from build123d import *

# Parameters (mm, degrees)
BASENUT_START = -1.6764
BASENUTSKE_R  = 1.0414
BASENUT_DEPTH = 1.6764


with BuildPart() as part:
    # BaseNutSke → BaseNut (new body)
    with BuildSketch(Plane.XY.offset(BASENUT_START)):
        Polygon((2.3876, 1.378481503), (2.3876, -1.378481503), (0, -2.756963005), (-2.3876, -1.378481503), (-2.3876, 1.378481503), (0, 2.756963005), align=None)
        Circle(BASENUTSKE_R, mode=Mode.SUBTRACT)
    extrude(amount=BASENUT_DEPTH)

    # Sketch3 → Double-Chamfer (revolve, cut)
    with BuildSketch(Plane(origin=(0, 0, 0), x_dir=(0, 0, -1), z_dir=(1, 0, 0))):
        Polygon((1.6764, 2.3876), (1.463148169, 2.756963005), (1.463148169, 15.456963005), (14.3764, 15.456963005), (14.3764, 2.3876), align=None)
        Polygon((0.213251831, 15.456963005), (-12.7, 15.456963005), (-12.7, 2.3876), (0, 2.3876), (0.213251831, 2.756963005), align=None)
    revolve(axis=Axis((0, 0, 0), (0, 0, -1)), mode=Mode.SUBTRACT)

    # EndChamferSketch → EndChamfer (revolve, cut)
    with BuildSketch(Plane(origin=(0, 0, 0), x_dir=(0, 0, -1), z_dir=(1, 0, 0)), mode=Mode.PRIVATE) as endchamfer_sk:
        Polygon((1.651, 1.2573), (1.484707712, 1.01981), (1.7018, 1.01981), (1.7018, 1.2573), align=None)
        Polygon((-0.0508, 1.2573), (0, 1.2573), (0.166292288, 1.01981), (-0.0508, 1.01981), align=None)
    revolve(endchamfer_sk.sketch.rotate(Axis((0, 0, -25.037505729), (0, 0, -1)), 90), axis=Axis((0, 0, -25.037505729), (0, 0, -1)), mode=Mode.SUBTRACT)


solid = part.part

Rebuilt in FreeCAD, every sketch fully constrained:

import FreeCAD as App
import Part
import Sketcher

V = App.Vector
Q = App.Units.Quantity

doc = App.newDocument("Part")
params = doc.addObject("Spreadsheet::Sheet", "Params")
for row, (alias, value) in enumerate([
    ("sketch1_diameter", "0.082 in"),
    ("pad1_length", "0.066 in"),
    ("sketch2_width", "0.5 in"),
    ("groove_angle", "360 deg"),
    ("sketch3_height", "0.002 in"),
    ("groove2_angle", "360 deg"),
], start=1):
    params.set(f"A{row}", alias)
    params.set(f"B{row}", "=" + value)
    params.setAlias(f"B{row}", alias)

body = doc.addObject("PartDesign::Body", "Body")

# Sketch on XY plane
sketch1 = body.newObject("Sketcher::SketchObject", "Sketch")
sketch1.AttachmentSupport = (doc.getObject("XY_Plane"), [""])
sketch1.MapMode = "FlatFace"
sketch1.AttachmentOffset = App.Placement(V(0, 0, -0.066 * 25.4), App.Rotation())
sketch1.addGeometry([
    Part.LineSegment(V(2.4, -1.4, 0), V(2.4, 1.4, 0)),  # 0
    Part.LineSegment(V(2.4, 1.4, 0), V(0, 2.8, 0)),  # 1
    Part.LineSegment(V(0, 2.8, 0), V(-2.4, 1.4, 0)),  # 2
    Part.LineSegment(V(-2.4, 1.4, 0), V(-2.4, -1.4, 0)),  # 3
    Part.LineSegment(V(-2.4, -1.4, 0), V(0, -2.8, 0)),  # 4
    Part.LineSegment(V(0, -2.8, 0), V(2.4, -1.4, 0)),  # 5
    Part.Circle(V(0, 0, 0), V(0, 0, 1), 1),  # 6
], False)
sketch1.addConstraint([
    Sketcher.Constraint("Coincident", 0, 2, 1, 1),
    Sketcher.Constraint("Coincident", 1, 2, 2, 1),
    Sketcher.Constraint("Coincident", 2, 2, 3, 1),
    Sketcher.Constraint("Coincident", 3, 2, 4, 1),
    Sketcher.Constraint("Coincident", 4, 2, 5, 1),
    Sketcher.Constraint("Coincident", 5, 2, 0, 1),
    Sketcher.Constraint("Vertical", 0),
    Sketcher.Constraint("Vertical", 3),
    Sketcher.Constraint("Coincident", 6, 3, -1, 1),
    Sketcher.Constraint("Symmetric", 0, 2, 3, 2, -1, 1),
    Sketcher.Constraint("Symmetric", 1, 2, 4, 2, -1, 1),
    Sketcher.Constraint("PointOnObject", 1, 2, -2),
    Sketcher.Constraint("Parallel", 2, 5),
    Sketcher.Constraint("Horizontal", 0, 2, 2, 2),
    Sketcher.Constraint("Diameter", 6, Q("0.082 in")),
    Sketcher.Constraint("Angle", 1, Q("150 deg")),
    Sketcher.Constraint("DistanceX", -1, 1, 0, 2, Q("0.094 in")),
    Sketcher.Constraint("DistanceY", 0, 1, 0, 2, Q("2.756963 mm")),
])
sketch1.setExpression("Constraints[14]", "Params.sketch1_diameter")
pad1 = body.newObject("PartDesign::Pad", "Pad")
pad1.Profile = sketch1
pad1.setExpression("Length", "Params.pad1_length")

# Sketch on YZ plane
sketch2 = body.newObject("Sketcher::SketchObject", "Sketch001")
sketch2.AttachmentSupport = (doc.getObject("YZ_Plane"), [""])
sketch2.MapMode = "FlatFace"
sketch2.addGeometry([
    Part.LineSegment(V(2.76, -1.46, 0), V(2.39, -1.68, 0)),  # 0
    Part.LineSegment(V(2.39, -1.68, 0), V(2.39, -14.38, 0)),  # 1
    Part.LineSegment(V(2.39, -14.38, 0), V(15.46, -14.38, 0)),  # 2
    Part.LineSegment(V(15.46, -14.38, 0), V(15.46, -1.46, 0)),  # 3
    Part.LineSegment(V(15.46, -1.46, 0), V(2.76, -1.46, 0)),  # 4
    Part.LineSegment(V(15.46, -0.21, 0), V(15.46, 12.7, 0)),  # 5
    Part.LineSegment(V(15.46, 12.7, 0), V(2.39, 12.7, 0)),  # 6
    Part.LineSegment(V(2.39, 12.7, 0), V(2.39, 0, 0)),  # 7
    Part.LineSegment(V(2.39, 0, 0), V(2.76, -0.21, 0)),  # 8
    Part.LineSegment(V(2.76, -0.21, 0), V(15.46, -0.21, 0)),  # 9
], False)
sketch2.addConstraint([
    Sketcher.Constraint("Coincident", 0, 2, 1, 1),
    Sketcher.Constraint("Coincident", 1, 2, 2, 1),
    Sketcher.Constraint("Coincident", 2, 2, 3, 1),
    Sketcher.Constraint("Coincident", 3, 2, 4, 1),
    Sketcher.Constraint("Coincident", 4, 2, 0, 1),
    Sketcher.Constraint("Coincident", 5, 2, 6, 1),
    Sketcher.Constraint("Coincident", 6, 2, 7, 1),
    Sketcher.Constraint("Coincident", 7, 2, 8, 1),
    Sketcher.Constraint("Coincident", 8, 2, 9, 1),
    Sketcher.Constraint("Coincident", 9, 2, 5, 1),
    Sketcher.Constraint("Vertical", 1),
    Sketcher.Constraint("Horizontal", 2),
    Sketcher.Constraint("Vertical", 3),
    Sketcher.Constraint("Horizontal", 4),
    Sketcher.Constraint("Vertical", 5),
    Sketcher.Constraint("Horizontal", 6),
    Sketcher.Constraint("Vertical", 7),
    Sketcher.Constraint("Horizontal", 9),
    Sketcher.Constraint("PointOnObject", 7, 2, -1),
    Sketcher.Constraint("Vertical", 3, 2, 5, 2),
    Sketcher.Constraint("Vertical", 1, 2, 6, 2),
    Sketcher.Constraint("Vertical", 4, 2, 8, 2),
    Sketcher.Constraint("Equal", 9, 1),
    Sketcher.Constraint("Equal", 3, 5),
    Sketcher.Constraint("Equal", 1, 7),
    Sketcher.Constraint("DistanceX", 4, 2, 4, 1, Q("0.5 in")),
    Sketcher.Constraint("Angle", 0, Q("-150 deg")),
    Sketcher.Constraint("DistanceX", -1, 1, 0, 2, Q("0.094 in")),
    Sketcher.Constraint("DistanceY", 0, 2, -1, 1, Q("0.066 in")),
    Sketcher.Constraint("DistanceY", 3, 1, 3, 2, Q("12.913252 mm")),
])
sketch2.setExpression("Constraints[25]", "Params.sketch2_width")
groove = body.newObject("PartDesign::Groove", "Groove")
groove.Profile = sketch2
groove.ReferenceAxis = (sketch2, ["V_Axis"])
groove.setExpression("Angle", "Params.groove_angle")

# Sketch on YZ plane
sketch3 = body.newObject("Sketcher::SketchObject", "Sketch002")
sketch3.AttachmentSupport = (doc.getObject("YZ_Plane"), [""])
sketch3.MapMode = "FlatFace"
sketch3.addGeometry([
    Part.LineSegment(V(1.26, -1.65, 0), V(1.02, -1.48, 0)),  # 0
    Part.LineSegment(V(1.02, -1.48, 0), V(1.02, -1.7, 0)),  # 1
    Part.LineSegment(V(1.02, -1.7, 0), V(1.26, -1.7, 0)),  # 2
    Part.LineSegment(V(1.26, -1.7, 0), V(1.26, -1.65, 0)),  # 3
    Part.LineSegment(V(1.26, 0, 0), V(1.26, 0.05, 0)),  # 4
    Part.LineSegment(V(1.26, 0.05, 0), V(1.02, 0.05, 0)),  # 5
    Part.LineSegment(V(1.02, 0.05, 0), V(1.02, -0.17, 0)),  # 6
    Part.LineSegment(V(1.02, -0.17, 0), V(1.26, 0, 0)),  # 7
], False)
sketch3.addConstraint([
    Sketcher.Constraint("Coincident", 0, 2, 1, 1),
    Sketcher.Constraint("Coincident", 1, 2, 2, 1),
    Sketcher.Constraint("Coincident", 2, 2, 3, 1),
    Sketcher.Constraint("Coincident", 3, 2, 0, 1),
    Sketcher.Constraint("Coincident", 4, 2, 5, 1),
    Sketcher.Constraint("Coincident", 5, 2, 6, 1),
    Sketcher.Constraint("Coincident", 6, 2, 7, 1),
    Sketcher.Constraint("Coincident", 7, 2, 4, 1),
    Sketcher.Constraint("Vertical", 1),
    Sketcher.Constraint("Horizontal", 2),
    Sketcher.Constraint("Vertical", 3),
    Sketcher.Constraint("Vertical", 4),
    Sketcher.Constraint("Horizontal", 5),
    Sketcher.Constraint("Vertical", 6),
    Sketcher.Constraint("PointOnObject", 7, 2, -1),
    Sketcher.Constraint("Vertical", 3, 2, 4, 2),
    Sketcher.Constraint("Vertical", 1, 2, 5, 2),
    Sketcher.Constraint("Equal", 3, 4),
    Sketcher.Constraint("Equal", 1, 6),
    Sketcher.Constraint("Angle", 0, Q("145 deg")),
    Sketcher.Constraint("DistanceY", 3, 1, 3, 2, Q("0.002 in")),
    Sketcher.Constraint("DistanceY", 1, 2, -1, 1, Q("0.067 in")),
    Sketcher.Constraint("DistanceX", -1, 1, 2, 2, Q("0.0495 in")),
    Sketcher.Constraint("DistanceX", 2, 1, 2, 2, Q("0.23749 mm")),
])
sketch3.setExpression("Constraints[20]", "Params.sketch3_height")
groove2 = body.newObject("PartDesign::Groove", "Groove001")
groove2.Profile = sketch3
groove2.ReferenceAxis = (sketch3, ["V_Axis"])
groove2.setExpression("Angle", "Params.groove2_angle")

doc.recompute()
